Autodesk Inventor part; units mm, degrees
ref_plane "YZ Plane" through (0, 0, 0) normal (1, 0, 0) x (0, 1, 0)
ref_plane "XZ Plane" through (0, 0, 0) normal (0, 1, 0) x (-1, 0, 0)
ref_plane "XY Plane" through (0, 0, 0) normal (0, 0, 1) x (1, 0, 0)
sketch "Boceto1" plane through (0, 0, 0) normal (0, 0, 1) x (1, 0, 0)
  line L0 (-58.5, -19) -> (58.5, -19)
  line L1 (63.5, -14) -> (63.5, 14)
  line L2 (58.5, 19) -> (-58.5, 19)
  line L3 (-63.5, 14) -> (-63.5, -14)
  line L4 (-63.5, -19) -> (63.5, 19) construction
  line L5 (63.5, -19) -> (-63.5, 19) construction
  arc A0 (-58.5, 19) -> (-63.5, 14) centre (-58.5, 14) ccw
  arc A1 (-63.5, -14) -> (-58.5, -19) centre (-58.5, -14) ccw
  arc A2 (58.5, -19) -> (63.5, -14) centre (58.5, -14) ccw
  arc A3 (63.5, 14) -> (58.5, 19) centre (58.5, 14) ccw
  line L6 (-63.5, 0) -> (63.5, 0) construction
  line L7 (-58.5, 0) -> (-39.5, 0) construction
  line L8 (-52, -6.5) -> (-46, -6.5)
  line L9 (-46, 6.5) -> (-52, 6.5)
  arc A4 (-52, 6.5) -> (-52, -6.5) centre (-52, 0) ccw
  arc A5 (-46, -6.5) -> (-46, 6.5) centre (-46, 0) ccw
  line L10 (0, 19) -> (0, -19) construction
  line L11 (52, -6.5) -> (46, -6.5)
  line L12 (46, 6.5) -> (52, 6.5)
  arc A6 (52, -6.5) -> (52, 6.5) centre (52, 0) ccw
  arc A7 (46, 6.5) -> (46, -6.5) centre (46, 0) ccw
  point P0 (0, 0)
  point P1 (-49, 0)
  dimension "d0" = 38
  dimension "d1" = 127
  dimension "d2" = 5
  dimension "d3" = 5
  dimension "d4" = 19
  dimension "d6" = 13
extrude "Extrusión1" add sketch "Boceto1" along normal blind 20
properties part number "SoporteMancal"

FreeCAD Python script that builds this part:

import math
import FreeCAD as App
import Part
import Sketcher

doc = App.newDocument("Part")
body = doc.addObject("PartDesign::Body", "Body")

# Sketch on XY plane
sketch1 = doc.addObject("Sketcher::SketchObject", "Sketch")
body.addObject(sketch1)
sketch1.AttachmentSupport = (doc.XY_Plane, [""])
sketch1.MapMode = "FlatFace"
sketch1.addGeometry(Part.ArcOfCircle(Part.Circle(App.Vector(-58, -14, 0), App.Vector(0, 0, 1), 5), math.radians(180), math.radians(270)), False)
sketch1.addGeometry(Part.LineSegment(App.Vector(-58, -19, 0), App.Vector(58, -19, 0)), False)
sketch1.addGeometry(Part.ArcOfCircle(Part.Circle(App.Vector(58, -14, 0), App.Vector(0, 0, 1), 5), math.radians(-90), math.radians(0)), False)
sketch1.addGeometry(Part.LineSegment(App.Vector(64, -14, 0), App.Vector(64, 14, 0)), False)
sketch1.addGeometry(Part.ArcOfCircle(Part.Circle(App.Vector(58, 14, 0), App.Vector(0, 0, 1), 5), math.radians(0), math.radians(90)), False)
sketch1.addGeometry(Part.LineSegment(App.Vector(58, 19, 0), App.Vector(-58, 19, 0)), False)
sketch1.addGeometry(Part.ArcOfCircle(Part.Circle(App.Vector(-58, 14, 0), App.Vector(0, 0, 1), 5), math.radians(90), math.radians(180)), False)
sketch1.addGeometry(Part.LineSegment(App.Vector(-64, 14, 0), App.Vector(-64, -14, 0)), False)
sketch1.addGeometry(Part.LineSegment(App.Vector(-46, -6, 0), App.Vector(-52, -6, 0)), False)
sketch1.addGeometry(Part.ArcOfCircle(Part.Circle(App.Vector(-52, 0, 0), App.Vector(0, 0, 1), 6), math.radians(90), math.radians(270)), False)
sketch1.addGeometry(Part.LineSegment(App.Vector(-52, 6, 0), App.Vector(-46, 6, 0)), False)
sketch1.addGeometry(Part.ArcOfCircle(Part.Circle(App.Vector(-46, 0, 0), App.Vector(0, 0, 1), 6), math.radians(-90), math.radians(90)), False)
sketch1.addGeometry(Part.ArcOfCircle(Part.Circle(App.Vector(52, 0, 0), App.Vector(0, 0, 1), 6), math.radians(-90), math.radians(90)), False)
sketch1.addGeometry(Part.LineSegment(App.Vector(52, -6, 0), App.Vector(46, -6, 0)), False)
sketch1.addGeometry(Part.ArcOfCircle(Part.Circle(App.Vector(46, 0, 0), App.Vector(0, 0, 1), 6), math.radians(90), math.radians(270)), False)
sketch1.addGeometry(Part.LineSegment(App.Vector(46, 6, 0), App.Vector(52, 6, 0)), False)
sketch1.addConstraint(Sketcher.Constraint("Tangent", 0, 2, 1, 1))
sketch1.addConstraint(Sketcher.Constraint("Tangent", 1, 2, 2, 1))
sketch1.addConstraint(Sketcher.Constraint("Tangent", 2, 2, 3, 1))
sketch1.addConstraint(Sketcher.Constraint("Tangent", 3, 2, 4, 1))
sketch1.addConstraint(Sketcher.Constraint("Tangent", 4, 2, 5, 1))
sketch1.addConstraint(Sketcher.Constraint("Tangent", 5, 2, 6, 1))
sketch1.addConstraint(Sketcher.Constraint("Tangent", 6, 2, 7, 1))
sketch1.addConstraint(Sketcher.Constraint("Tangent", 7, 2, 0, 1))
sketch1.addConstraint(Sketcher.Constraint("Tangent", 8, 2, 9, 2))
sketch1.addConstraint(Sketcher.Constraint("Tangent", 9, 1, 10, 1))
sketch1.addConstraint(Sketcher.Constraint("Tangent", 10, 2, 11, 2))
sketch1.addConstraint(Sketcher.Constraint("Tangent", 11, 1, 8, 1))
sketch1.addConstraint(Sketcher.Constraint("Tangent", 12, 1, 13, 1))
sketch1.addConstraint(Sketcher.Constraint("Tangent", 13, 2, 14, 2))
sketch1.addConstraint(Sketcher.Constraint("Tangent", 14, 1, 15, 1))
sketch1.addConstraint(Sketcher.Constraint("Tangent", 15, 2, 12, 2))
sketch1.addConstraint(Sketcher.Constraint("Horizontal", 1))
sketch1.addConstraint(Sketcher.Constraint("Vertical", 3))
sketch1.addConstraint(Sketcher.Constraint("Horizontal", 5))
sketch1.addConstraint(Sketcher.Constraint("Vertical", 7))
sketch1.addConstraint(Sketcher.Constraint("Horizontal", 8))
sketch1.addConstraint(Sketcher.Constraint("Horizontal", 10))
sketch1.addConstraint(Sketcher.Constraint("Horizontal", 13))
sketch1.addConstraint(Sketcher.Constraint("Horizontal", 15))
sketch1.addConstraint(Sketcher.Constraint("Equal", 0, 2))
sketch1.addConstraint(Sketcher.Constraint("Equal", 2, 4))
sketch1.addConstraint(Sketcher.Constraint("Equal", 4, 6))
sketch1.addConstraint(Sketcher.Constraint("Equal", 11, 12))
sketch1.addConstraint(Sketcher.Constraint("Symmetric", 0, 3, 4, 3, -1, 1))
sketch1.addConstraint(Sketcher.Constraint("Symmetric", 9, 3, 12, 3, -1, 1))
sketch1.addConstraint(Sketcher.Constraint("Symmetric", 11, 3, 14, 3, -2))
sketch1.addConstraint(Sketcher.Constraint("Radius", 0, 5.0))
sketch1.addConstraint(Sketcher.Constraint("Radius", 9, 6.5))
sketch1.addConstraint(Sketcher.Constraint("DistanceY", 0, 2, -1, 1, 19.0))
sketch1.addConstraint(Sketcher.Constraint("DistanceX", 1, 1, 1, 2, 117.0))
sketch1.addConstraint(Sketcher.Constraint("DistanceX", 8, 2, 8, 1, 6.0))
sketch1.addConstraint(Sketcher.Constraint("DistanceX", 9, 3, -1, 1, 52.0))
pad1 = doc.addObject("PartDesign::Pad", "Pad")
body.addObject(pad1)
pad1.Profile = sketch1
pad1.Length = 20

doc.recompute()
